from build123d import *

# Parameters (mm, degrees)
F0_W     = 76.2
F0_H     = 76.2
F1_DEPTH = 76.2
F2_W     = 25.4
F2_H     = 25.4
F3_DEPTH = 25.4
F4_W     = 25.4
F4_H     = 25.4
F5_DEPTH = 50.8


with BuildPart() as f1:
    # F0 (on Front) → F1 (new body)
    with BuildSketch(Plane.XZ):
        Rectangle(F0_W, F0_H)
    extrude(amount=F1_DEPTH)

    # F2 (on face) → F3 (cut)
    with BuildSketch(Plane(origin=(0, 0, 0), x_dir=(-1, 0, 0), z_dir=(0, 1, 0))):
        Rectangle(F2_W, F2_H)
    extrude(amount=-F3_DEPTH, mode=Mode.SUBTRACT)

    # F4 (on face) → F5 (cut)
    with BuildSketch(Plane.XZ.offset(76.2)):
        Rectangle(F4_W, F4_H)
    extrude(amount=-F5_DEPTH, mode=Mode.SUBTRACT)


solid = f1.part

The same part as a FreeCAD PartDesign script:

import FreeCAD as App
import Part
import Sketcher

V = App.Vector
Q = App.Units.Quantity


def add_polygon(sketch, points):
    """Adds a closed chain of lines whose ends are joined by coincident constraints."""
    first, n = sketch.GeometryCount, len(points)
    for a, b in zip(points, points[1:] + points[:1]):
        sketch.addGeometry(Part.LineSegment(App.Vector(*a, 0), App.Vector(*b, 0)), False)
    for i in range(n):
        sketch.addConstraint(Sketcher.Constraint("Coincident", first + i, 2, first + (i + 1) % n, 1))

doc = App.newDocument("Part")
body = doc.addObject("PartDesign::Body", "Body")

# Sketch on XZ plane
sketch1 = body.newObject("Sketcher::SketchObject", "Sketch")
sketch1.AttachmentSupport = (doc.getObject("XZ_Plane"), [""])
sketch1.MapMode = "FlatFace"
add_polygon(sketch1, [(-38.1, 38.1), (-38.1, -38.1), (38.1, -38.1), (38.1, 38.1)])  # lines 0-3
sketch1.addConstraint(Sketcher.Constraint("Vertical", 0))
sketch1.addConstraint(Sketcher.Constraint("Horizontal", 1))
sketch1.addConstraint(Sketcher.Constraint("Vertical", 2))
sketch1.addConstraint(Sketcher.Constraint("Horizontal", 3))
sketch1.addConstraint(Sketcher.Constraint("Symmetric", 0, 2, 2, 2, -1, 1))
sketch1.addConstraint(Sketcher.Constraint("Equal", 3, 0))
sketch1.addConstraint(Sketcher.Constraint("DistanceX", 1, 1, 1, 2, Q("3 in")))
pad1 = body.newObject("PartDesign::Pad", "Pad")
pad1.Profile = sketch1
pad1.Length = Q("3 in")

# Sketch on XZ plane
sketch2 = body.newObject("Sketcher::SketchObject", "Sketch001")
sketch2.AttachmentSupport = (doc.getObject("XZ_Plane"), [""])
sketch2.MapMode = "FlatFace"
add_polygon(sketch2, [(12.7, 12.7), (12.7, -12.7), (-12.7, -12.7), (-12.7, 12.7)])  # lines 0-3
sketch2.addConstraint(Sketcher.Constraint("Vertical", 0))
sketch2.addConstraint(Sketcher.Constraint("Horizontal", 1))
sketch2.addConstraint(Sketcher.Constraint("Vertical", 2))
sketch2.addConstraint(Sketcher.Constraint("Horizontal", 3))
sketch2.addConstraint(Sketcher.Constraint("Symmetric", 0, 2, 2, 2, -1, 1))
sketch2.addConstraint(Sketcher.Constraint("Equal", 3, 0))
sketch2.addConstraint(Sketcher.Constraint("DistanceX", 1, 2, 1, 1, Q("1 in")))
pocket1 = body.newObject("PartDesign::Pocket", "Pocket")
pocket1.Profile = sketch2
pocket1.Length = Q("1 in")
pocket1.Reversed = True

# Sketch on XZ plane
sketch3 = body.newObject("Sketcher::SketchObject", "Sketch002")
sketch3.AttachmentSupport = (doc.getObject("XZ_Plane"), [""])
sketch3.MapMode = "FlatFace"
sketch3.AttachmentOffset = App.Placement(V(0, 0, 3 * 25.4), App.Rotation())
add_polygon(sketch3, [(-12.7, 12.7), (-12.7, -12.7), (12.7, -12.7), (12.7, 12.7)])  # lines 0-3
sketch3.addConstraint(Sketcher.Constraint("Vertical", 0))
sketch3.addConstraint(Sketcher.Constraint("Horizontal", 1))
sketch3.addConstraint(Sketcher.Constraint("Vertical", 2))
sketch3.addConstraint(Sketcher.Constraint("Horizontal", 3))
sketch3.addConstraint(Sketcher.Constraint("Symmetric", 0, 2, 2, 2, -1, 1))
sketch3.addConstraint(Sketcher.Constraint("Equal", 3, 0))
sketch3.addConstraint(Sketcher.Constraint("DistanceX", 1, 1, 1, 2, Q("1 in")))
pocket2 = body.newObject("PartDesign::Pocket", "Pocket001")
pocket2.Profile = sketch3
pocket2.Length = Q("2 in")

doc.recompute()
